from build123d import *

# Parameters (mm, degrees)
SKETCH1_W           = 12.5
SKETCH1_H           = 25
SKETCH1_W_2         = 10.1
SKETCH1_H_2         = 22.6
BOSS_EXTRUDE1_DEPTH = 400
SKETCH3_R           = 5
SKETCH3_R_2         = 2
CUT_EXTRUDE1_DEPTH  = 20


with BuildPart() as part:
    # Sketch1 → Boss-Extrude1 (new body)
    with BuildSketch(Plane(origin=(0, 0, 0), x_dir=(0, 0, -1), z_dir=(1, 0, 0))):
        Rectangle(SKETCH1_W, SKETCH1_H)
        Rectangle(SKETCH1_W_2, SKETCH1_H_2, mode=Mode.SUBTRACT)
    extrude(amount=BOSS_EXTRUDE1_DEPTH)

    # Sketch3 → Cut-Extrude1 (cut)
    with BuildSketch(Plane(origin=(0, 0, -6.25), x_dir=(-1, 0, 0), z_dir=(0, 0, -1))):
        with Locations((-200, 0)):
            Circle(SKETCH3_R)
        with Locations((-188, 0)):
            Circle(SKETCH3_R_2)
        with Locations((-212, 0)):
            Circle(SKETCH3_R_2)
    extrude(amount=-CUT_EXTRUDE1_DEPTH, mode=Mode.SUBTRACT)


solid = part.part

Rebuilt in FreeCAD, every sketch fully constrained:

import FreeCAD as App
import Part
import Sketcher

V = App.Vector
Q = App.Units.Quantity

doc = App.newDocument("Part")
params = doc.addObject("Spreadsheet::Sheet", "Params")
for row, (alias, value) in enumerate([
    ("sketch1_width", "25 mm"),
    ("sketch1_width2", "22.6 mm"),
    ("sketch1_height", "12.5 mm"),
    ("sketch1_height2", "10.1 mm"),
    ("pad1_length", "400 mm"),
    ("sketch2_diameter", "10 mm"),
    ("sketch2_diameter2", "4 mm"),
    ("pocket1_length", "20 mm"),
], start=1):
    params.set(f"A{row}", alias)
    params.set(f"B{row}", "=" + value)
    params.setAlias(f"B{row}", alias)

body = doc.addObject("PartDesign::Body", "Body")

# Sketch on YZ plane
sketch1 = body.newObject("Sketcher::SketchObject", "Sketch")
sketch1.AttachmentSupport = (doc.getObject("YZ_Plane"), [""])
sketch1.MapMode = "FlatFace"
sketch1.addGeometry([
    Part.LineSegment(V(12, 6, 0), V(-12, 6, 0)),  # 0
    Part.LineSegment(V(-12, 6, 0), V(-12, -6, 0)),  # 1
    Part.LineSegment(V(-12, -6, 0), V(12, -6, 0)),  # 2
    Part.LineSegment(V(12, -6, 0), V(12, 6, 0)),  # 3
    Part.LineSegment(V(-11, -5, 0), V(-11, 5, 0)),  # 4
    Part.LineSegment(V(-11, 5, 0), V(11, 5, 0)),  # 5
    Part.LineSegment(V(11, 5, 0), V(11, -5, 0)),  # 6
    Part.LineSegment(V(11, -5, 0), V(-11, -5, 0)),  # 7
], False)
sketch1.addConstraint([
    Sketcher.Constraint("Coincident", 0, 2, 1, 1),
    Sketcher.Constraint("Coincident", 1, 2, 2, 1),
    Sketcher.Constraint("Coincident", 2, 2, 3, 1),
    Sketcher.Constraint("Coincident", 3, 2, 0, 1),
    Sketcher.Constraint("Coincident", 4, 2, 5, 1),
    Sketcher.Constraint("Coincident", 5, 2, 6, 1),
    Sketcher.Constraint("Coincident", 6, 2, 7, 1),
    Sketcher.Constraint("Coincident", 7, 2, 4, 1),
    Sketcher.Constraint("Horizontal", 0),
    Sketcher.Constraint("Vertical", 1),
    Sketcher.Constraint("Horizontal", 2),
    Sketcher.Constraint("Vertical", 3),
    Sketcher.Constraint("Vertical", 4),
    Sketcher.Constraint("Horizontal", 5),
    Sketcher.Constraint("Vertical", 6),
    Sketcher.Constraint("Horizontal", 7),
    Sketcher.Constraint("Symmetric", 0, 2, 2, 2, -1, 1),
    Sketcher.Constraint("Symmetric", 4, 2, 6, 2, -1, 1),
    Sketcher.Constraint("DistanceX", 0, 2, 0, 1, Q("25 mm")),
    Sketcher.Constraint("DistanceX", 5, 1, 5, 2, Q("22.6 mm")),
    Sketcher.Constraint("DistanceY", 1, 2, 1, 1, Q("12.5 mm")),
    Sketcher.Constraint("DistanceY", 4, 1, 4, 2, Q("10.1 mm")),
])
sketch1.setExpression("Constraints[18]", "Params.sketch1_width")
sketch1.setExpression("Constraints[19]", "Params.sketch1_width2")
sketch1.setExpression("Constraints[20]", "Params.sketch1_height")
sketch1.setExpression("Constraints[21]", "Params.sketch1_height2")
pad1 = body.newObject("PartDesign::Pad", "Pad")
pad1.Profile = sketch1
pad1.setExpression("Length", "Params.pad1_length")

# Sketch on XY plane
sketch2 = body.newObject("Sketcher::SketchObject", "Sketch001")
sketch2.AttachmentSupport = (doc.getObject("XY_Plane"), [""])
sketch2.MapMode = "FlatFace"
sketch2.AttachmentOffset = App.Placement(V(0, 0, -6.25), App.Rotation())
sketch2.addGeometry([
    Part.Circle(V(200, 0, 0), V(0, 0, 1), 5),
    Part.Circle(V(188, 0, 0), V(0, 0, 1), 2),
    Part.Circle(V(212, 0, 0), V(0, 0, 1), 2),
], False)
sketch2.addConstraint([
    Sketcher.Constraint("Equal", 1, 2),
    Sketcher.Constraint("PointOnObject", 0, 3, -1),
    Sketcher.Constraint("PointOnObject", 1, 3, -1),
    Sketcher.Constraint("PointOnObject", 2, 3, -1),
    Sketcher.Constraint("Diameter", 0, Q("10 mm")),
    Sketcher.Constraint("Diameter", 1, Q("4 mm")),
    Sketcher.Constraint("DistanceX", -1, 1, 0, 3, Q("200 mm")),
    Sketcher.Constraint("DistanceX", -1, 1, 1, 3, Q("188 mm")),
    Sketcher.Constraint("DistanceX", -1, 1, 2, 3, Q("212 mm")),
])
sketch2.setExpression("Constraints[4]", "Params.sketch2_diameter")
sketch2.setExpression("Constraints[5]", "Params.sketch2_diameter2")
pocket1 = body.newObject("PartDesign::Pocket", "Pocket")
pocket1.Profile = sketch2
pocket1.setExpression("Length", "Params.pocket1_length")
pocket1.Reversed = True

doc.recompute()
